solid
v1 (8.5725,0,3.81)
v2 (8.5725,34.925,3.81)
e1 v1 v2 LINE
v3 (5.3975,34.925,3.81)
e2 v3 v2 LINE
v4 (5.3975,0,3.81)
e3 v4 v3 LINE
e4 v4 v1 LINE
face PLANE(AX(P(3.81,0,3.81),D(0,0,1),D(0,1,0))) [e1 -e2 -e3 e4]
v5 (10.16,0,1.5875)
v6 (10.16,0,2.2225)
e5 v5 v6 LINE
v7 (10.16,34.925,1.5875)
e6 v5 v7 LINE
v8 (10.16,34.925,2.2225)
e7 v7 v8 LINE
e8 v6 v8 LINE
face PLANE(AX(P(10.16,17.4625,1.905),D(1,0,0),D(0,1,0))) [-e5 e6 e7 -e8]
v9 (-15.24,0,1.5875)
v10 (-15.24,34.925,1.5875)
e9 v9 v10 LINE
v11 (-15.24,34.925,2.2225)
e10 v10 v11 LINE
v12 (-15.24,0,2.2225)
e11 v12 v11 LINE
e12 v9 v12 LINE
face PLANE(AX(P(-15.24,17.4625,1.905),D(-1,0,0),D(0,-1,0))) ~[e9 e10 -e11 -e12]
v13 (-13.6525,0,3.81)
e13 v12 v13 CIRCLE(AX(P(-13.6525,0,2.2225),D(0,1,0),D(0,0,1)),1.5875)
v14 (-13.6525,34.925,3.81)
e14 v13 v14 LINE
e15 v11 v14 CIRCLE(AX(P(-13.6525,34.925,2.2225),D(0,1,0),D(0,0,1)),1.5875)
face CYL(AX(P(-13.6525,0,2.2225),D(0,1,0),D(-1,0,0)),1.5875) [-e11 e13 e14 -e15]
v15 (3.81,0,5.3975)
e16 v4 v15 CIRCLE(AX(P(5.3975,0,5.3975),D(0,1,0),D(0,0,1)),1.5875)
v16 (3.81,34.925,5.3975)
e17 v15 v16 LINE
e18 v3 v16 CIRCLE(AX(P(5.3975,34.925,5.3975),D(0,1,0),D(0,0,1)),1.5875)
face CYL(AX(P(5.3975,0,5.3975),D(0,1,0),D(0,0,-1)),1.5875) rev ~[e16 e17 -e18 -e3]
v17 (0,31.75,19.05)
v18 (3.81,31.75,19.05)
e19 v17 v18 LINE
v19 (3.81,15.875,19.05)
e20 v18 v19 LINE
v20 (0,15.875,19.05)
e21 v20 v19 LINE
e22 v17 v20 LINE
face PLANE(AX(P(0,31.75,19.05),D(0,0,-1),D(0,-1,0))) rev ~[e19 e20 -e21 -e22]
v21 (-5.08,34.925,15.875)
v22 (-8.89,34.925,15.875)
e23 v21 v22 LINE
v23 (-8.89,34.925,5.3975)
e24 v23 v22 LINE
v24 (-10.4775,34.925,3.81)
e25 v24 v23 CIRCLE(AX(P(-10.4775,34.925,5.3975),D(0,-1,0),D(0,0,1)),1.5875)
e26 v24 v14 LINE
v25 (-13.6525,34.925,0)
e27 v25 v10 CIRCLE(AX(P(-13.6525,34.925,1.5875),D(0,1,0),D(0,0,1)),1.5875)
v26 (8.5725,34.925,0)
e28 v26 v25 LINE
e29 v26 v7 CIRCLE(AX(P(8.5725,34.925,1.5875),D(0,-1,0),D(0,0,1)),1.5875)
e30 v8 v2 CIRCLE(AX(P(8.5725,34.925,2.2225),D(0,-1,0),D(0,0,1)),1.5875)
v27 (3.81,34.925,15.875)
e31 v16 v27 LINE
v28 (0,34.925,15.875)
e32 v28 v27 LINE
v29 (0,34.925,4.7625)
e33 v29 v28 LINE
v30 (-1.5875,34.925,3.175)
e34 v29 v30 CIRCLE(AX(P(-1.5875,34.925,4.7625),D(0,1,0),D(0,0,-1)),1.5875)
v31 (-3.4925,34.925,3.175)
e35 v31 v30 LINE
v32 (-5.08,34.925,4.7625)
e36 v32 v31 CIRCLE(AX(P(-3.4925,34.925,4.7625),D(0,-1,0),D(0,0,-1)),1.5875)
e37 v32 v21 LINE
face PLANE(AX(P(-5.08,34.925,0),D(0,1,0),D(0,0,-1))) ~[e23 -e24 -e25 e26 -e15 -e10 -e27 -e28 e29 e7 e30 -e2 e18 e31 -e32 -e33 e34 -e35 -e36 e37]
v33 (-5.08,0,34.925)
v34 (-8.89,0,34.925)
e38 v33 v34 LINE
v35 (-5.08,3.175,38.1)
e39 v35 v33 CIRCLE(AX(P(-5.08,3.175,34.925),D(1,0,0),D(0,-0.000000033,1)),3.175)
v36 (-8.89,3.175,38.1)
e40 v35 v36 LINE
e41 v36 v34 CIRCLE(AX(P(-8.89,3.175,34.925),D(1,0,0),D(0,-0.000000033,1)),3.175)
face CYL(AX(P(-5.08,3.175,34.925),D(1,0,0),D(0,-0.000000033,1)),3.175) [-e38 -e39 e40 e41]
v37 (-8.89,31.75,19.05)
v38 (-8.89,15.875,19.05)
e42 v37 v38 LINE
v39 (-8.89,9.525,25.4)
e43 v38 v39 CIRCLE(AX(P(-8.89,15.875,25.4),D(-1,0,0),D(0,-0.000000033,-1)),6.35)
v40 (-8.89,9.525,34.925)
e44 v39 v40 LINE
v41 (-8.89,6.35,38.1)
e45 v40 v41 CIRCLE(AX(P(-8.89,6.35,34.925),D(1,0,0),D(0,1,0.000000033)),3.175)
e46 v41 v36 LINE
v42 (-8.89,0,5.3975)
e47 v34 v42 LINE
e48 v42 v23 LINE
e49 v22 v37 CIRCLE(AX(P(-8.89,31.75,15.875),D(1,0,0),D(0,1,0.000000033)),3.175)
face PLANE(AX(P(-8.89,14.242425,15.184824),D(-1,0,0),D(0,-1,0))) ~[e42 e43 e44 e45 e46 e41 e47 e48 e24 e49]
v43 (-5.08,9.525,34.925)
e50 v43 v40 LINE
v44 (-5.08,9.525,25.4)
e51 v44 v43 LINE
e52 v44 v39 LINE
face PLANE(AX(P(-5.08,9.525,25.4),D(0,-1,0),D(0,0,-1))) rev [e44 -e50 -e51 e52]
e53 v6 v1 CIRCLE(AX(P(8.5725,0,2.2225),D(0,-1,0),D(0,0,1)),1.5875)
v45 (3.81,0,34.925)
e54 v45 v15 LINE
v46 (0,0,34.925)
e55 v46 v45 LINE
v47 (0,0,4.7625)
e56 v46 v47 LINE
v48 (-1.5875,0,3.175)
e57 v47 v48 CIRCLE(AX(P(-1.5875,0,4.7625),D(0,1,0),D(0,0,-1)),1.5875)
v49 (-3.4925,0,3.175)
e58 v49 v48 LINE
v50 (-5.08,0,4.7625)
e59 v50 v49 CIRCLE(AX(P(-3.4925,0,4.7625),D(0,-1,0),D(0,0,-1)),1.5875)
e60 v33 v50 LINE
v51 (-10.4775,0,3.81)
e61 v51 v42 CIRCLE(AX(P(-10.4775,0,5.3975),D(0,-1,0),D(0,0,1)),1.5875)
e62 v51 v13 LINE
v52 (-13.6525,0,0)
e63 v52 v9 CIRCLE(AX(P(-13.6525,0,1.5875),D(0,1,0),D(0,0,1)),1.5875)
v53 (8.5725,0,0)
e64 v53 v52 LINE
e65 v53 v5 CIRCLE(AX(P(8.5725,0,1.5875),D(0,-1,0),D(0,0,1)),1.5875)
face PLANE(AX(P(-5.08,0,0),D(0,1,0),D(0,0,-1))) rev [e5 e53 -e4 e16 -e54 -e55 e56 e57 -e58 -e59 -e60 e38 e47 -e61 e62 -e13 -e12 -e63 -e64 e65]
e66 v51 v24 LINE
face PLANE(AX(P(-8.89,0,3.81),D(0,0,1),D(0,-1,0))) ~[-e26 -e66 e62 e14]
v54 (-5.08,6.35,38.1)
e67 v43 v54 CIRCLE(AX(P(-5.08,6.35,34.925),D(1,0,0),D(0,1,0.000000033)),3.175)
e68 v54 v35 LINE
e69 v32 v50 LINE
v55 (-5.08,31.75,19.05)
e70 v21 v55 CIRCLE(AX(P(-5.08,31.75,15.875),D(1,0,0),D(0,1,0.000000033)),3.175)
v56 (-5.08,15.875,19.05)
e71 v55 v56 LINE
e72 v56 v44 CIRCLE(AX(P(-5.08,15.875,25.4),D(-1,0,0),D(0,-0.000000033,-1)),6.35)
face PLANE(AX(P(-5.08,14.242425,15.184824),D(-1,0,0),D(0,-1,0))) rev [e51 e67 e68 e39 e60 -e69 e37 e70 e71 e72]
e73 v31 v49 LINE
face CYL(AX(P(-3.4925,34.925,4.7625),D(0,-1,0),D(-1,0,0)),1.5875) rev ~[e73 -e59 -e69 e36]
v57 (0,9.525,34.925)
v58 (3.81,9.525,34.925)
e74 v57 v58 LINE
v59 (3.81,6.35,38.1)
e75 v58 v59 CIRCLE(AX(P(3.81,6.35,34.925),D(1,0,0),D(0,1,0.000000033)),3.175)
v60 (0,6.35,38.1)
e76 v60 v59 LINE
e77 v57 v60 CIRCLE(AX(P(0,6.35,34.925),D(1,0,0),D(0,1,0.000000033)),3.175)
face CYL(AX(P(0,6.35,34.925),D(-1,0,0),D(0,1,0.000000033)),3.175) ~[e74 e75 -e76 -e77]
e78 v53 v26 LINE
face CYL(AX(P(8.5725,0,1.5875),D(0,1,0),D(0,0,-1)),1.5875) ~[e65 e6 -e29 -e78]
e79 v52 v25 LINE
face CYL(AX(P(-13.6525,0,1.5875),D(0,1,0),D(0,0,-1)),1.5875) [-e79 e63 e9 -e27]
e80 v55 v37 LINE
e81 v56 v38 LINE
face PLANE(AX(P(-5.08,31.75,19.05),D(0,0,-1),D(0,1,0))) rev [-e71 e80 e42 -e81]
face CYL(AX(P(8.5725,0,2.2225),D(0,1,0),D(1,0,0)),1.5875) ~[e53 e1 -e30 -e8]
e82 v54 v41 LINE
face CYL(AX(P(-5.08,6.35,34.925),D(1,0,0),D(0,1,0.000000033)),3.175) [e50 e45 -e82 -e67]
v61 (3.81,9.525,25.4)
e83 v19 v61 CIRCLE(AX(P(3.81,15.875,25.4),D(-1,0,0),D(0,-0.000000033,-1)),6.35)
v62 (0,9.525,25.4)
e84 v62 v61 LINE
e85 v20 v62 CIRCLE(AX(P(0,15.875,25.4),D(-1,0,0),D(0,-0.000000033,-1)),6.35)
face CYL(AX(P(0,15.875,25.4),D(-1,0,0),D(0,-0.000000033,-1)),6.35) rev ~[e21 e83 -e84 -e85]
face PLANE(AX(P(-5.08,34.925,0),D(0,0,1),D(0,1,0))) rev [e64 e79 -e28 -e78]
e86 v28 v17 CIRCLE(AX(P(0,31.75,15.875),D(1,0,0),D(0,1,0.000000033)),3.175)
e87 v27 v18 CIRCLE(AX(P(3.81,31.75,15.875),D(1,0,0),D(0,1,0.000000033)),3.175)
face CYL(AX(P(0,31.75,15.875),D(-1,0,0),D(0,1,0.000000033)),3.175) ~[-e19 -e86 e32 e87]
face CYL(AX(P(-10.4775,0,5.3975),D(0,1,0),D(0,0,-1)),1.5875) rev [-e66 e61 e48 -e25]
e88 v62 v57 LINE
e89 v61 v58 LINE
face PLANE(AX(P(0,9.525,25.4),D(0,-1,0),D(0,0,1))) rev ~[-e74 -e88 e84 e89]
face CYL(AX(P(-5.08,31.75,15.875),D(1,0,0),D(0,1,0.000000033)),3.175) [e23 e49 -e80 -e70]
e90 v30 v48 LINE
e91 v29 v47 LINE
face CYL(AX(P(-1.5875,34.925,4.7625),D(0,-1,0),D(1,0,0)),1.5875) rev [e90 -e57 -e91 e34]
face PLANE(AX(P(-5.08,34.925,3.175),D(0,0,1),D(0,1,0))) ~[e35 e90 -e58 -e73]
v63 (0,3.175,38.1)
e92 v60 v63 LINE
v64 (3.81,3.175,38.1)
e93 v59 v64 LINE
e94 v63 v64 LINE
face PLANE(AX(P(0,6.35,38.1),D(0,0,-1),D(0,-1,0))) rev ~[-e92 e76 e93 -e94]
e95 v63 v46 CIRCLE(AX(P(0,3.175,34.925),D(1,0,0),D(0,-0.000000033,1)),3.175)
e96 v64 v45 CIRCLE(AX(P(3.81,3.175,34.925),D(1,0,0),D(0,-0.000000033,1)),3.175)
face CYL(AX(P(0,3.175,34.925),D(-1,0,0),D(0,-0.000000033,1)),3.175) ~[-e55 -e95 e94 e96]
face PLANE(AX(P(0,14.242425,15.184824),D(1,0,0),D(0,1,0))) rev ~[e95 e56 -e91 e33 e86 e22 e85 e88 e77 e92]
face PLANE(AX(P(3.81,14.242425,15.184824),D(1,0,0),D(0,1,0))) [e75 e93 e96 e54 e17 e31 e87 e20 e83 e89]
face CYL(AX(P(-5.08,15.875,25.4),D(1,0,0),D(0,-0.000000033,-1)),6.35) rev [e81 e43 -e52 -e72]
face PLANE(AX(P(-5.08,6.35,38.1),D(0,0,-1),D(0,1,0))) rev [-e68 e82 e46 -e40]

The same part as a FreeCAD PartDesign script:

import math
import FreeCAD as App
import Part
import Sketcher
from FreeCAD import Vector
Q = App.Units.Quantity


def edges_at(feature, points):
    """Names of the edges that pass closest to the given points."""
    edges = feature.Shape.Edges
    near = lambda p: min(range(len(edges)), key=lambda i: edges[i].distToShape(Part.Vertex(*p))[0])
    return sorted({f"Edge{near(p) + 1}" for p in points})


def add_polygon(sketch, points):
    """Adds a closed chain of lines whose ends are joined by coincident constraints."""
    first, n = sketch.GeometryCount, len(points)
    for a, b in zip(points, points[1:] + points[:1]):
        sketch.addGeometry(Part.LineSegment(App.Vector(*a, 0), App.Vector(*b, 0)), False)
    for i in range(n):
        sketch.addConstraint(Sketcher.Constraint("Coincident", first + i, 2, first + (i + 1) % n, 1))

doc = App.newDocument("Part")
body = doc.addObject("PartDesign::Body", "Body")

sketch1 = body.newObject("Sketcher::SketchObject", "Sketch")
sketch1.AttachmentSupport = (doc.getObject("YZ_Plane"), [""])
sketch1.MapMode = "FlatFace"
sketch1.addGeometry([
    Part.LineSegment(Vector(0, 34.9, 0), Vector(0, 0, 0)),
    Part.LineSegment(Vector(0, 0, 0), Vector(34.9, 0, 0)),
    Part.LineSegment(Vector(34.9, 0, 0), Vector(34.9, 15.9, 0)),
    Part.ArcOfCircle(Part.Circle(Vector(31.7, 15.9, 0), Vector(0, 0, 1), 3.2), math.radians(0), math.radians(90)),
    Part.LineSegment(Vector(31.8, 19.1, 0), Vector(15.9, 19.1, 0)),
    Part.ArcOfCircle(Part.Circle(Vector(15.9, 25.4, 0), Vector(0, 0, 1), 6.4), math.radians(-180), math.radians(-90)),
    Part.LineSegment(Vector(9.5, 25.4, 0), Vector(9.5, 34.9, 0)),
    Part.ArcOfCircle(Part.Circle(Vector(6.3, 34.9, 0), Vector(0, 0, 1), 3.2), math.radians(0), math.radians(90)),
    Part.LineSegment(Vector(6.3, 38.1, 0), Vector(3.2, 38.1, 0)),
    Part.ArcOfCircle(Part.Circle(Vector(3.2, 34.9, 0), Vector(0, 0, 1), 3.2), math.radians(90), math.radians(180)),
], False)
sketch1.addConstraint([
    Sketcher.Constraint("Coincident", 0, 2, 1, 1),
    Sketcher.Constraint("Coincident", 1, 2, 2, 1),
    Sketcher.Constraint("Tangent", 2, 2, 3, 1),
    Sketcher.Constraint("Tangent", 3, 2, 4, 1),
    Sketcher.Constraint("Tangent", 4, 2, 5, 2),
    Sketcher.Constraint("Tangent", 5, 1, 6, 1),
    Sketcher.Constraint("Tangent", 6, 2, 7, 1),
    Sketcher.Constraint("Tangent", 7, 2, 8, 1),
    Sketcher.Constraint("Tangent", 8, 2, 9, 1),
    Sketcher.Constraint("Tangent", 9, 2, 0, 1),
    Sketcher.Constraint("Vertical", 0),
    Sketcher.Constraint("Horizontal", 1),
    Sketcher.Constraint("Vertical", 2),
    Sketcher.Constraint("Horizontal", 4),
    Sketcher.Constraint("Vertical", 6),
    Sketcher.Constraint("Horizontal", 8),
    Sketcher.Constraint("Coincident", 0, 2, -1, 1),
    Sketcher.Constraint("Equal", 3, 7),
    Sketcher.Constraint("Equal", 7, 9),
    Sketcher.Constraint("Equal", 1, 0),
    Sketcher.Constraint("Equal", 4, 2),
    Sketcher.Constraint("Radius", 5, Q("0.25 in")),
    Sketcher.Constraint("DistanceY", -1, 1, 5, 3, Q("1 in")),
    Sketcher.Constraint("Radius", 3, Q("0.125 in")),
    Sketcher.Constraint("DistanceY", -1, 1, 7, 2, Q("1.5 in")),
])
pad1 = body.newObject("PartDesign::Pad", "Pad")
pad1.Profile = sketch1
pad1.Length = Q("0.15 in")

sketch2 = body.newObject("Sketcher::SketchObject", "Sketch001")
sketch2.AttachmentSupport = (doc.getObject("YZ_Plane"), [""])
sketch2.MapMode = "FlatFace"
sketch2.AttachmentOffset = App.Placement(Vector(0, 0, 0.15 * 25.4), App.Rotation())
add_polygon(sketch2, [(0, 3.8), (0, 0), (34.9, 0), (34.9, 3.8)])
sketch2.addConstraint([
    Sketcher.Constraint("Vertical", 0),
    Sketcher.Constraint("Horizontal", 1),
    Sketcher.Constraint("Vertical", 2),
    Sketcher.Constraint("Horizontal", 3),
    Sketcher.Constraint("Coincident", 0, 2, -1, 1),
    Sketcher.Constraint("DistanceY", 0, 2, 0, 1, Q("0.15 in")),
    Sketcher.Constraint("DistanceX", 1, 1, 1, 2, Q("1.375 in")),
])
pad2 = body.newObject("PartDesign::Pad", "Pad001")
pad2.Profile = sketch2
pad2.Length = Q("0.25 in")

sketch3 = body.newObject("Sketcher::SketchObject", "Sketch002")
sketch3.AttachmentSupport = (doc.getObject("YZ_Plane"), [""])
sketch3.MapMode = "FlatFace"
add_polygon(sketch3, [(34.9, 3.2), (34.9, 0), (0, 0), (0, 3.2)])
sketch3.addConstraint([
    Sketcher.Constraint("Vertical", 0),
    Sketcher.Constraint("Horizontal", 1),
    Sketcher.Constraint("Vertical", 2),
    Sketcher.Constraint("Horizontal", 3),
    Sketcher.Constraint("Coincident", 1, 2, -1, 1),
    Sketcher.Constraint("DistanceX", 1, 2, 1, 1, Q("1.375 in")),
    Sketcher.Constraint("DistanceY", 0, 2, 0, 1, Q("0.125 in")),
])
pad3 = body.newObject("PartDesign::Pad", "Pad002")
pad3.Profile = sketch3
pad3.Length = Q("0.1 in")
pad3.Reversed = True
doc.recompute()

fillet = body.newObject("PartDesign::Fillet", "Fillet")
fillet.Base = (pad3, edges_at(pad3, [
    (3.81, 17.462, 3.81),
    (10.16, 17.462, 3.81),
    (0, 17.462, 3.175),
    (10.16, 17.462, 0),
]))
fillet.Radius = Q("0.0625 in")
body2 = doc.addObject("PartDesign::Body", "Body001")
doc.recompute()

body2.BaseFeature = body
doc.recompute()

mirroring = doc.addObject("Part::Mirroring", "Mirroring")
mirroring.Source = body
mirroring.Base = Vector(-2.54, 17.4625, 1.5875)
mirroring.Normal = Vector(-1, 0, 0)
body3 = doc.addObject("PartDesign::Body", "Body002")
body3.BaseFeature = mirroring
boolean = body2.newObject("PartDesign::Boolean", "Boolean")
boolean.Type = "Fuse"
boolean.addObjects([body3])
doc.recompute()
mirroring.Visibility = False

doc.recompute()
